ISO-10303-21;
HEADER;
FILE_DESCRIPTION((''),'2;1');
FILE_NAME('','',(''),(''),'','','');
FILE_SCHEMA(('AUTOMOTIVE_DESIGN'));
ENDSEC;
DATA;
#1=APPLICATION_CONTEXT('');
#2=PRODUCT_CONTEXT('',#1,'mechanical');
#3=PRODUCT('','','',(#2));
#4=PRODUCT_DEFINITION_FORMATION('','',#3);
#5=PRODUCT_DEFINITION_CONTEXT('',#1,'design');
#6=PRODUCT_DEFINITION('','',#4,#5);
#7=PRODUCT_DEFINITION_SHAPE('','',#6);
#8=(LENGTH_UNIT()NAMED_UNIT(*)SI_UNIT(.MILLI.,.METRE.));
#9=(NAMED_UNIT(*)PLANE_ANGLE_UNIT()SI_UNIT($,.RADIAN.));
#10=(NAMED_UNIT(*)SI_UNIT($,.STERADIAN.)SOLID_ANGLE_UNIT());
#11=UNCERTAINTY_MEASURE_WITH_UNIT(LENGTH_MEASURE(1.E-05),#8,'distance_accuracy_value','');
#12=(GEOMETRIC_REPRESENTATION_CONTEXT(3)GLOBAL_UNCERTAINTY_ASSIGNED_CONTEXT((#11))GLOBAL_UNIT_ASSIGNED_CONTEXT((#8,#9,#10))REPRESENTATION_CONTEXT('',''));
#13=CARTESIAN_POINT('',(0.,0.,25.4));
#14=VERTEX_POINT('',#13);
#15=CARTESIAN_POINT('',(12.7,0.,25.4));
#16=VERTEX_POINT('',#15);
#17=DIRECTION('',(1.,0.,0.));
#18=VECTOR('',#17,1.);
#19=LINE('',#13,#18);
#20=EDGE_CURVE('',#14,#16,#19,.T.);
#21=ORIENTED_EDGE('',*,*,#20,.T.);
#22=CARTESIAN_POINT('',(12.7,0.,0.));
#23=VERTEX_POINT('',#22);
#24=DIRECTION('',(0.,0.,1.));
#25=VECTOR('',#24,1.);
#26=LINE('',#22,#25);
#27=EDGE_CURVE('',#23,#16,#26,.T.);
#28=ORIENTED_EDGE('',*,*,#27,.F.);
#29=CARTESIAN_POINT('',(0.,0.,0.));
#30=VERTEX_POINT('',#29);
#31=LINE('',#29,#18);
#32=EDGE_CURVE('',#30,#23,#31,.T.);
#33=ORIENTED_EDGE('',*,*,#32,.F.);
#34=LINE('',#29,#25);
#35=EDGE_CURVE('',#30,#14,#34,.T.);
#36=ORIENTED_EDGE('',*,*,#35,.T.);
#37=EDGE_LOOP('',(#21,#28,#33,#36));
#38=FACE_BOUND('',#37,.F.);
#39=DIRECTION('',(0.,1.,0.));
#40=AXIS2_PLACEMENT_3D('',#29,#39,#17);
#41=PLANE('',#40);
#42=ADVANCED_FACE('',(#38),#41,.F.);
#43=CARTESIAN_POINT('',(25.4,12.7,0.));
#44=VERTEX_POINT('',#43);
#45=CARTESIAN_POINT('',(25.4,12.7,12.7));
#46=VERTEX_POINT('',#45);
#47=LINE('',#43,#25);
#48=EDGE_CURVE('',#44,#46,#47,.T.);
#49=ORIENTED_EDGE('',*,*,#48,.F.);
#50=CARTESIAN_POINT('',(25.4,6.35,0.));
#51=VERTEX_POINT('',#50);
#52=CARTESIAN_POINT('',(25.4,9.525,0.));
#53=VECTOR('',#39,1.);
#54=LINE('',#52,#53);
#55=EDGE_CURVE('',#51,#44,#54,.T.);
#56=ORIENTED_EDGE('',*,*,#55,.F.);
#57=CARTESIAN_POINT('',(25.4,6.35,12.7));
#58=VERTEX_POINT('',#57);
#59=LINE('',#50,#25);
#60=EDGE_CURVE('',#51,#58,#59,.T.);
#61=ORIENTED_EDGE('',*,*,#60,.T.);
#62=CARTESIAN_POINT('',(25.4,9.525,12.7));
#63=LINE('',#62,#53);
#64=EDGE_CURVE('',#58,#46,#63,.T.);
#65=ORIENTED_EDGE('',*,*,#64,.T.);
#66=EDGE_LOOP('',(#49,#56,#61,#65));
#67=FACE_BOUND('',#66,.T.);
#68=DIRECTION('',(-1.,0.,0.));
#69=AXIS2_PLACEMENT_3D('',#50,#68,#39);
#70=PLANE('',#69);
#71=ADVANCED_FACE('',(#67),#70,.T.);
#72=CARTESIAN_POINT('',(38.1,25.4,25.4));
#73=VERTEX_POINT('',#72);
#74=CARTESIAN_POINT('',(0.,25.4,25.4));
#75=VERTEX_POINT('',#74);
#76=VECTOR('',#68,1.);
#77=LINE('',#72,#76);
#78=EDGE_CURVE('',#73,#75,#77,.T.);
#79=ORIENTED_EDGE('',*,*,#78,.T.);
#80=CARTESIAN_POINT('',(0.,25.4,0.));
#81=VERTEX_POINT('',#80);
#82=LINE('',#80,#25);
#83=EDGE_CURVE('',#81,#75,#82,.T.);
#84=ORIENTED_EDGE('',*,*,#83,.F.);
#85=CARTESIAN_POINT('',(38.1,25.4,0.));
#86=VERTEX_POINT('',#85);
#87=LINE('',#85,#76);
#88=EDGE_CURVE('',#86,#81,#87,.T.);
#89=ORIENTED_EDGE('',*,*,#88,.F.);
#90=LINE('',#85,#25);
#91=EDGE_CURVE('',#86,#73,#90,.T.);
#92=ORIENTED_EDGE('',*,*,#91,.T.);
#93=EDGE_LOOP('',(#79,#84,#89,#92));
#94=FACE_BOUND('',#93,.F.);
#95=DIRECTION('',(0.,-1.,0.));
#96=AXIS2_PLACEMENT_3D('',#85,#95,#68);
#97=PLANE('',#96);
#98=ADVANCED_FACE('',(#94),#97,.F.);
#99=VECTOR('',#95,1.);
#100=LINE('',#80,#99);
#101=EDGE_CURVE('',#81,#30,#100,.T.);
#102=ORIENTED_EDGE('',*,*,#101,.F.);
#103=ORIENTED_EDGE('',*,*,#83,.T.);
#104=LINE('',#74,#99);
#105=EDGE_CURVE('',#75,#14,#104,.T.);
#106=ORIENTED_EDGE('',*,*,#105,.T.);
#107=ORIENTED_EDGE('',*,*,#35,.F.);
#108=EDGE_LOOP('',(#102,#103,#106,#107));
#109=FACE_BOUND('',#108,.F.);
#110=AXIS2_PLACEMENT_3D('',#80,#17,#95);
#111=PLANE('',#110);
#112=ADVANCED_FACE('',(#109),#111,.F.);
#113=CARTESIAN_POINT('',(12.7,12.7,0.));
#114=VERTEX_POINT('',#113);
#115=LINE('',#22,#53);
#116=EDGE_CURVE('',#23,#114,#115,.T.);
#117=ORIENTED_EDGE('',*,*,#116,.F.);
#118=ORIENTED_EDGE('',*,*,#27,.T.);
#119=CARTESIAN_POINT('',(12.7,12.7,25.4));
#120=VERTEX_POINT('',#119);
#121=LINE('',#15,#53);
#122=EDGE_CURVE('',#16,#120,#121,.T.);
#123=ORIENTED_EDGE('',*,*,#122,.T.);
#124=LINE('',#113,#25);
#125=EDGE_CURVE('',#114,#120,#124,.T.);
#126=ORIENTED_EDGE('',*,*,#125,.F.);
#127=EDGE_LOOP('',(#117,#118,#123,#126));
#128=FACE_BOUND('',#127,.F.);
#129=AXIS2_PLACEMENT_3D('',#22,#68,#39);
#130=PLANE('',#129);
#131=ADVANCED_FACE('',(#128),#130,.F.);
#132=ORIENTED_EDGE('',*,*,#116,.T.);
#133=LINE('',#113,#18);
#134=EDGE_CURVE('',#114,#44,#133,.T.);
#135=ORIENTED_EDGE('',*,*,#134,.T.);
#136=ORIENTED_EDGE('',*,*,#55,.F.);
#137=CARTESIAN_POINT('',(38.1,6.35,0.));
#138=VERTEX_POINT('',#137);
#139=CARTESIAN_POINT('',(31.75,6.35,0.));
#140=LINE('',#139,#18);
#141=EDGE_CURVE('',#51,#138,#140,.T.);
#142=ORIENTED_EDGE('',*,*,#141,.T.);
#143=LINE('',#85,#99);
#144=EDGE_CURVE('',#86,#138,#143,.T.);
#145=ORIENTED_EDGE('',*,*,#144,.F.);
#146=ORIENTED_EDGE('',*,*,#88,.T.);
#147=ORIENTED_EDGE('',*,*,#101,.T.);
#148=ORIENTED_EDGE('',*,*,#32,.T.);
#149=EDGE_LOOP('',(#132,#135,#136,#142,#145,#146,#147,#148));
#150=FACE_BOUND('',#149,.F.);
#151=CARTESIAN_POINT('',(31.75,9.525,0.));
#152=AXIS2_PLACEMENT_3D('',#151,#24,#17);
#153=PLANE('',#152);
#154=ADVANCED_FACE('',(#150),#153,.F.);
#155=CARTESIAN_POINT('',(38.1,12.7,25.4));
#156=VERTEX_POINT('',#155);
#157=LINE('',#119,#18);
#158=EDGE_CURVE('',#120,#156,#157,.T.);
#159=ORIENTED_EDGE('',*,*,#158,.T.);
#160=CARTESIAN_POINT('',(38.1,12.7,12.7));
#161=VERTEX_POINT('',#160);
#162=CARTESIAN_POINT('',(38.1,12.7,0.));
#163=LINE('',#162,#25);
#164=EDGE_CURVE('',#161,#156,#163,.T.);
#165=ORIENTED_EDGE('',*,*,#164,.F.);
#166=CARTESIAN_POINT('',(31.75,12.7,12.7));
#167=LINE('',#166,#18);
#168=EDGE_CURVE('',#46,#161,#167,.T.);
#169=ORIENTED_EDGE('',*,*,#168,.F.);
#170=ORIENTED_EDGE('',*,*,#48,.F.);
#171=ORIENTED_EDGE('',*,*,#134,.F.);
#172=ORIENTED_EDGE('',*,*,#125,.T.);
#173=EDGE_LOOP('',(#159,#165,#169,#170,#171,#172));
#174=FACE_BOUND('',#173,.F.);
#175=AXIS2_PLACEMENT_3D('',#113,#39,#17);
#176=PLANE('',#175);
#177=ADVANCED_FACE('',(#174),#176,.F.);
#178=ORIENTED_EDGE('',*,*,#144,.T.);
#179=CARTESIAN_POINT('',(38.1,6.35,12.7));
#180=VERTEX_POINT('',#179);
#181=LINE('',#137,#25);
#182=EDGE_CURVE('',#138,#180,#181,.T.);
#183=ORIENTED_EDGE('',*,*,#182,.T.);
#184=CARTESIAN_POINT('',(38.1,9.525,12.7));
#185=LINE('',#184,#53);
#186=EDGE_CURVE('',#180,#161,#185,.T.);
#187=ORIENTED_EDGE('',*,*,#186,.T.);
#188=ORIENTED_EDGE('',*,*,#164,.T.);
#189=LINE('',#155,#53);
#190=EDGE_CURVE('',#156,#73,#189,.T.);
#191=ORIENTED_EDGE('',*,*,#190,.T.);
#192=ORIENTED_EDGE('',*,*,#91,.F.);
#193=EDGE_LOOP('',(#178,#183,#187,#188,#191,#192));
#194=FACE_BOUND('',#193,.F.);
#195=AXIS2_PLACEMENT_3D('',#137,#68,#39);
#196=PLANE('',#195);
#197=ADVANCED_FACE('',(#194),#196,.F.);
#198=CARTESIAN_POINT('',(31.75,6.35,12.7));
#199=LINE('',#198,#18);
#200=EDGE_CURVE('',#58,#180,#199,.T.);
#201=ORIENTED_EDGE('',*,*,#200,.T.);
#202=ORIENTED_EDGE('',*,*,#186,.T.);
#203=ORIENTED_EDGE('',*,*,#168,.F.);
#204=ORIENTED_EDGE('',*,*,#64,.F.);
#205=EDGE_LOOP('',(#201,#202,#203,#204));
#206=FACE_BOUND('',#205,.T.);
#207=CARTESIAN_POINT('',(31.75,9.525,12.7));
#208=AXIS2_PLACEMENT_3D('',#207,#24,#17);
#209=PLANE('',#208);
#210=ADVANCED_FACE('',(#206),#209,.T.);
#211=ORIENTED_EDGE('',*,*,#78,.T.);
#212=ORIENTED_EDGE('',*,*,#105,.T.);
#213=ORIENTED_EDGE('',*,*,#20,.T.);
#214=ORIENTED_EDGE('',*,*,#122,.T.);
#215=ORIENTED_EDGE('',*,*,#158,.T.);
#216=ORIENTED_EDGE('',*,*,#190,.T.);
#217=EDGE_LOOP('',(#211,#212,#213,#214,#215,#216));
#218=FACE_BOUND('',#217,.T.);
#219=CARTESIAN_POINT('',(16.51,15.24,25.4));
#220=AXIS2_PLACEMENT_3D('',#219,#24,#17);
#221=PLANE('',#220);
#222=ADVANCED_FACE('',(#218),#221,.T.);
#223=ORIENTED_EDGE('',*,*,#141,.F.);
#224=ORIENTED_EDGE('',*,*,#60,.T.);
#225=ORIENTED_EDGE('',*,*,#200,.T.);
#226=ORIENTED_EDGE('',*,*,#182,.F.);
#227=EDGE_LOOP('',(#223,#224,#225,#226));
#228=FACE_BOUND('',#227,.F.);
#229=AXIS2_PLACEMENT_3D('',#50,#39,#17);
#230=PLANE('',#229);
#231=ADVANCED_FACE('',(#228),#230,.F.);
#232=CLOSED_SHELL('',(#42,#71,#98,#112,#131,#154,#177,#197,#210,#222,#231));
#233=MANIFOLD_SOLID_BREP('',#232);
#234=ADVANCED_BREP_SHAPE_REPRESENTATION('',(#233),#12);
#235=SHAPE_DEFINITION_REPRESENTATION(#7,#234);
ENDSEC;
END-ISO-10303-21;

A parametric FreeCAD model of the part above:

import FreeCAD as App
import Part
import Sketcher

V = App.Vector
Q = App.Units.Quantity

doc = App.newDocument("Part")
params = doc.addObject("Spreadsheet::Sheet", "Params")
for row, (alias, value) in enumerate([
    ("sketch1_width", "1 in"),
    ("pad1_length", "1 in"),
    ("sketch2_width", "0.5 in"),
    ("sketch2_height", "0.25 in"),
    ("pad2_length", "0.5 in"),
], start=1):
    params.set(f"A{row}", alias)
    params.set(f"B{row}", "=" + value)
    params.setAlias(f"B{row}", alias)

body = doc.addObject("PartDesign::Body", "Body")

sketch1 = body.newObject("Sketcher::SketchObject", "Sketch")
sketch1.AttachmentSupport = (doc.getObject("XY_Plane"), [""])
sketch1.MapMode = "FlatFace"
sketch1.addGeometry([
    Part.LineSegment(V(0, 25.4, 0), V(0, 0, 0)),
    Part.LineSegment(V(0, 0, 0), V(12.7, 0, 0)),
    Part.LineSegment(V(12.7, 0, 0), V(12.7, 12.7, 0)),
    Part.LineSegment(V(12.7, 12.7, 0), V(38.1, 12.7, 0)),
    Part.LineSegment(V(38.1, 12.7, 0), V(38.1, 25.4, 0)),
    Part.LineSegment(V(38.1, 25.4, 0), V(0, 25.4, 0)),
], False)
sketch1.addConstraint([
    Sketcher.Constraint("Coincident", 0, 2, 1, 1),
    Sketcher.Constraint("Coincident", 1, 2, 2, 1),
    Sketcher.Constraint("Coincident", 2, 2, 3, 1),
    Sketcher.Constraint("Coincident", 3, 2, 4, 1),
    Sketcher.Constraint("Coincident", 4, 2, 5, 1),
    Sketcher.Constraint("Coincident", 5, 2, 0, 1),
    Sketcher.Constraint("Vertical", 0),
    Sketcher.Constraint("Horizontal", 1),
    Sketcher.Constraint("Vertical", 2),
    Sketcher.Constraint("Horizontal", 3),
    Sketcher.Constraint("Vertical", 4),
    Sketcher.Constraint("Horizontal", 5),
    Sketcher.Constraint("Coincident", 0, 2, -1, 1),
    Sketcher.Constraint("Equal", 3, 0),
    Sketcher.Constraint("Equal", 1, 2),
    Sketcher.Constraint("Equal", 2, 4),
    Sketcher.Constraint("DistanceX", 3, 1, 3, 2, Q("1 in")),
])
sketch1.setExpression("Constraints[16]", "Params.sketch1_width")
pad1 = body.newObject("PartDesign::Pad", "Pad")
pad1.Profile = sketch1
pad1.setExpression("Length", "Params.pad1_length")

sketch2 = body.newObject("Sketcher::SketchObject", "Sketch001")
sketch2.AttachmentSupport = (doc.getObject("XY_Plane"), [""])
sketch2.MapMode = "FlatFace"
sketch2.addGeometry([
    Part.LineSegment(V(25.4, 12.7, 0), V(25.4, 6.35, 0)),
    Part.LineSegment(V(25.4, 6.35, 0), V(38.1, 6.35, 0)),
    Part.LineSegment(V(38.1, 6.35, 0), V(38.1, 12.7, 0)),
    Part.LineSegment(V(38.1, 12.7, 0), V(25.4, 12.7, 0)),
], False)
sketch2.addConstraint([
    Sketcher.Constraint("Coincident", 0, 2, 1, 1),
    Sketcher.Constraint("Coincident", 1, 2, 2, 1),
    Sketcher.Constraint("Coincident", 2, 2, 3, 1),
    Sketcher.Constraint("Coincident", 3, 2, 0, 1),
    Sketcher.Constraint("Vertical", 0),
    Sketcher.Constraint("Horizontal", 1),
    Sketcher.Constraint("Vertical", 2),
    Sketcher.Constraint("Horizontal", 3),
    Sketcher.Constraint("DistanceX", 1, 1, 1, 2, Q("0.5 in")),
    Sketcher.Constraint("DistanceX", -1, 1, 0, 2, Q("1 in")),
    Sketcher.Constraint("DistanceY", 0, 2, 0, 1, Q("0.25 in")),
    Sketcher.Constraint("DistanceY", -1, 1, 2, 2, Q("0.5 in")),
])
sketch2.setExpression("Constraints[8]", "Params.sketch2_width")
sketch2.setExpression("Constraints[10]", "Params.sketch2_height")
pad2 = body.newObject("PartDesign::Pad", "Pad001")
pad2.Profile = sketch2
pad2.setExpression("Length", "Params.pad2_length")

doc.recompute()
